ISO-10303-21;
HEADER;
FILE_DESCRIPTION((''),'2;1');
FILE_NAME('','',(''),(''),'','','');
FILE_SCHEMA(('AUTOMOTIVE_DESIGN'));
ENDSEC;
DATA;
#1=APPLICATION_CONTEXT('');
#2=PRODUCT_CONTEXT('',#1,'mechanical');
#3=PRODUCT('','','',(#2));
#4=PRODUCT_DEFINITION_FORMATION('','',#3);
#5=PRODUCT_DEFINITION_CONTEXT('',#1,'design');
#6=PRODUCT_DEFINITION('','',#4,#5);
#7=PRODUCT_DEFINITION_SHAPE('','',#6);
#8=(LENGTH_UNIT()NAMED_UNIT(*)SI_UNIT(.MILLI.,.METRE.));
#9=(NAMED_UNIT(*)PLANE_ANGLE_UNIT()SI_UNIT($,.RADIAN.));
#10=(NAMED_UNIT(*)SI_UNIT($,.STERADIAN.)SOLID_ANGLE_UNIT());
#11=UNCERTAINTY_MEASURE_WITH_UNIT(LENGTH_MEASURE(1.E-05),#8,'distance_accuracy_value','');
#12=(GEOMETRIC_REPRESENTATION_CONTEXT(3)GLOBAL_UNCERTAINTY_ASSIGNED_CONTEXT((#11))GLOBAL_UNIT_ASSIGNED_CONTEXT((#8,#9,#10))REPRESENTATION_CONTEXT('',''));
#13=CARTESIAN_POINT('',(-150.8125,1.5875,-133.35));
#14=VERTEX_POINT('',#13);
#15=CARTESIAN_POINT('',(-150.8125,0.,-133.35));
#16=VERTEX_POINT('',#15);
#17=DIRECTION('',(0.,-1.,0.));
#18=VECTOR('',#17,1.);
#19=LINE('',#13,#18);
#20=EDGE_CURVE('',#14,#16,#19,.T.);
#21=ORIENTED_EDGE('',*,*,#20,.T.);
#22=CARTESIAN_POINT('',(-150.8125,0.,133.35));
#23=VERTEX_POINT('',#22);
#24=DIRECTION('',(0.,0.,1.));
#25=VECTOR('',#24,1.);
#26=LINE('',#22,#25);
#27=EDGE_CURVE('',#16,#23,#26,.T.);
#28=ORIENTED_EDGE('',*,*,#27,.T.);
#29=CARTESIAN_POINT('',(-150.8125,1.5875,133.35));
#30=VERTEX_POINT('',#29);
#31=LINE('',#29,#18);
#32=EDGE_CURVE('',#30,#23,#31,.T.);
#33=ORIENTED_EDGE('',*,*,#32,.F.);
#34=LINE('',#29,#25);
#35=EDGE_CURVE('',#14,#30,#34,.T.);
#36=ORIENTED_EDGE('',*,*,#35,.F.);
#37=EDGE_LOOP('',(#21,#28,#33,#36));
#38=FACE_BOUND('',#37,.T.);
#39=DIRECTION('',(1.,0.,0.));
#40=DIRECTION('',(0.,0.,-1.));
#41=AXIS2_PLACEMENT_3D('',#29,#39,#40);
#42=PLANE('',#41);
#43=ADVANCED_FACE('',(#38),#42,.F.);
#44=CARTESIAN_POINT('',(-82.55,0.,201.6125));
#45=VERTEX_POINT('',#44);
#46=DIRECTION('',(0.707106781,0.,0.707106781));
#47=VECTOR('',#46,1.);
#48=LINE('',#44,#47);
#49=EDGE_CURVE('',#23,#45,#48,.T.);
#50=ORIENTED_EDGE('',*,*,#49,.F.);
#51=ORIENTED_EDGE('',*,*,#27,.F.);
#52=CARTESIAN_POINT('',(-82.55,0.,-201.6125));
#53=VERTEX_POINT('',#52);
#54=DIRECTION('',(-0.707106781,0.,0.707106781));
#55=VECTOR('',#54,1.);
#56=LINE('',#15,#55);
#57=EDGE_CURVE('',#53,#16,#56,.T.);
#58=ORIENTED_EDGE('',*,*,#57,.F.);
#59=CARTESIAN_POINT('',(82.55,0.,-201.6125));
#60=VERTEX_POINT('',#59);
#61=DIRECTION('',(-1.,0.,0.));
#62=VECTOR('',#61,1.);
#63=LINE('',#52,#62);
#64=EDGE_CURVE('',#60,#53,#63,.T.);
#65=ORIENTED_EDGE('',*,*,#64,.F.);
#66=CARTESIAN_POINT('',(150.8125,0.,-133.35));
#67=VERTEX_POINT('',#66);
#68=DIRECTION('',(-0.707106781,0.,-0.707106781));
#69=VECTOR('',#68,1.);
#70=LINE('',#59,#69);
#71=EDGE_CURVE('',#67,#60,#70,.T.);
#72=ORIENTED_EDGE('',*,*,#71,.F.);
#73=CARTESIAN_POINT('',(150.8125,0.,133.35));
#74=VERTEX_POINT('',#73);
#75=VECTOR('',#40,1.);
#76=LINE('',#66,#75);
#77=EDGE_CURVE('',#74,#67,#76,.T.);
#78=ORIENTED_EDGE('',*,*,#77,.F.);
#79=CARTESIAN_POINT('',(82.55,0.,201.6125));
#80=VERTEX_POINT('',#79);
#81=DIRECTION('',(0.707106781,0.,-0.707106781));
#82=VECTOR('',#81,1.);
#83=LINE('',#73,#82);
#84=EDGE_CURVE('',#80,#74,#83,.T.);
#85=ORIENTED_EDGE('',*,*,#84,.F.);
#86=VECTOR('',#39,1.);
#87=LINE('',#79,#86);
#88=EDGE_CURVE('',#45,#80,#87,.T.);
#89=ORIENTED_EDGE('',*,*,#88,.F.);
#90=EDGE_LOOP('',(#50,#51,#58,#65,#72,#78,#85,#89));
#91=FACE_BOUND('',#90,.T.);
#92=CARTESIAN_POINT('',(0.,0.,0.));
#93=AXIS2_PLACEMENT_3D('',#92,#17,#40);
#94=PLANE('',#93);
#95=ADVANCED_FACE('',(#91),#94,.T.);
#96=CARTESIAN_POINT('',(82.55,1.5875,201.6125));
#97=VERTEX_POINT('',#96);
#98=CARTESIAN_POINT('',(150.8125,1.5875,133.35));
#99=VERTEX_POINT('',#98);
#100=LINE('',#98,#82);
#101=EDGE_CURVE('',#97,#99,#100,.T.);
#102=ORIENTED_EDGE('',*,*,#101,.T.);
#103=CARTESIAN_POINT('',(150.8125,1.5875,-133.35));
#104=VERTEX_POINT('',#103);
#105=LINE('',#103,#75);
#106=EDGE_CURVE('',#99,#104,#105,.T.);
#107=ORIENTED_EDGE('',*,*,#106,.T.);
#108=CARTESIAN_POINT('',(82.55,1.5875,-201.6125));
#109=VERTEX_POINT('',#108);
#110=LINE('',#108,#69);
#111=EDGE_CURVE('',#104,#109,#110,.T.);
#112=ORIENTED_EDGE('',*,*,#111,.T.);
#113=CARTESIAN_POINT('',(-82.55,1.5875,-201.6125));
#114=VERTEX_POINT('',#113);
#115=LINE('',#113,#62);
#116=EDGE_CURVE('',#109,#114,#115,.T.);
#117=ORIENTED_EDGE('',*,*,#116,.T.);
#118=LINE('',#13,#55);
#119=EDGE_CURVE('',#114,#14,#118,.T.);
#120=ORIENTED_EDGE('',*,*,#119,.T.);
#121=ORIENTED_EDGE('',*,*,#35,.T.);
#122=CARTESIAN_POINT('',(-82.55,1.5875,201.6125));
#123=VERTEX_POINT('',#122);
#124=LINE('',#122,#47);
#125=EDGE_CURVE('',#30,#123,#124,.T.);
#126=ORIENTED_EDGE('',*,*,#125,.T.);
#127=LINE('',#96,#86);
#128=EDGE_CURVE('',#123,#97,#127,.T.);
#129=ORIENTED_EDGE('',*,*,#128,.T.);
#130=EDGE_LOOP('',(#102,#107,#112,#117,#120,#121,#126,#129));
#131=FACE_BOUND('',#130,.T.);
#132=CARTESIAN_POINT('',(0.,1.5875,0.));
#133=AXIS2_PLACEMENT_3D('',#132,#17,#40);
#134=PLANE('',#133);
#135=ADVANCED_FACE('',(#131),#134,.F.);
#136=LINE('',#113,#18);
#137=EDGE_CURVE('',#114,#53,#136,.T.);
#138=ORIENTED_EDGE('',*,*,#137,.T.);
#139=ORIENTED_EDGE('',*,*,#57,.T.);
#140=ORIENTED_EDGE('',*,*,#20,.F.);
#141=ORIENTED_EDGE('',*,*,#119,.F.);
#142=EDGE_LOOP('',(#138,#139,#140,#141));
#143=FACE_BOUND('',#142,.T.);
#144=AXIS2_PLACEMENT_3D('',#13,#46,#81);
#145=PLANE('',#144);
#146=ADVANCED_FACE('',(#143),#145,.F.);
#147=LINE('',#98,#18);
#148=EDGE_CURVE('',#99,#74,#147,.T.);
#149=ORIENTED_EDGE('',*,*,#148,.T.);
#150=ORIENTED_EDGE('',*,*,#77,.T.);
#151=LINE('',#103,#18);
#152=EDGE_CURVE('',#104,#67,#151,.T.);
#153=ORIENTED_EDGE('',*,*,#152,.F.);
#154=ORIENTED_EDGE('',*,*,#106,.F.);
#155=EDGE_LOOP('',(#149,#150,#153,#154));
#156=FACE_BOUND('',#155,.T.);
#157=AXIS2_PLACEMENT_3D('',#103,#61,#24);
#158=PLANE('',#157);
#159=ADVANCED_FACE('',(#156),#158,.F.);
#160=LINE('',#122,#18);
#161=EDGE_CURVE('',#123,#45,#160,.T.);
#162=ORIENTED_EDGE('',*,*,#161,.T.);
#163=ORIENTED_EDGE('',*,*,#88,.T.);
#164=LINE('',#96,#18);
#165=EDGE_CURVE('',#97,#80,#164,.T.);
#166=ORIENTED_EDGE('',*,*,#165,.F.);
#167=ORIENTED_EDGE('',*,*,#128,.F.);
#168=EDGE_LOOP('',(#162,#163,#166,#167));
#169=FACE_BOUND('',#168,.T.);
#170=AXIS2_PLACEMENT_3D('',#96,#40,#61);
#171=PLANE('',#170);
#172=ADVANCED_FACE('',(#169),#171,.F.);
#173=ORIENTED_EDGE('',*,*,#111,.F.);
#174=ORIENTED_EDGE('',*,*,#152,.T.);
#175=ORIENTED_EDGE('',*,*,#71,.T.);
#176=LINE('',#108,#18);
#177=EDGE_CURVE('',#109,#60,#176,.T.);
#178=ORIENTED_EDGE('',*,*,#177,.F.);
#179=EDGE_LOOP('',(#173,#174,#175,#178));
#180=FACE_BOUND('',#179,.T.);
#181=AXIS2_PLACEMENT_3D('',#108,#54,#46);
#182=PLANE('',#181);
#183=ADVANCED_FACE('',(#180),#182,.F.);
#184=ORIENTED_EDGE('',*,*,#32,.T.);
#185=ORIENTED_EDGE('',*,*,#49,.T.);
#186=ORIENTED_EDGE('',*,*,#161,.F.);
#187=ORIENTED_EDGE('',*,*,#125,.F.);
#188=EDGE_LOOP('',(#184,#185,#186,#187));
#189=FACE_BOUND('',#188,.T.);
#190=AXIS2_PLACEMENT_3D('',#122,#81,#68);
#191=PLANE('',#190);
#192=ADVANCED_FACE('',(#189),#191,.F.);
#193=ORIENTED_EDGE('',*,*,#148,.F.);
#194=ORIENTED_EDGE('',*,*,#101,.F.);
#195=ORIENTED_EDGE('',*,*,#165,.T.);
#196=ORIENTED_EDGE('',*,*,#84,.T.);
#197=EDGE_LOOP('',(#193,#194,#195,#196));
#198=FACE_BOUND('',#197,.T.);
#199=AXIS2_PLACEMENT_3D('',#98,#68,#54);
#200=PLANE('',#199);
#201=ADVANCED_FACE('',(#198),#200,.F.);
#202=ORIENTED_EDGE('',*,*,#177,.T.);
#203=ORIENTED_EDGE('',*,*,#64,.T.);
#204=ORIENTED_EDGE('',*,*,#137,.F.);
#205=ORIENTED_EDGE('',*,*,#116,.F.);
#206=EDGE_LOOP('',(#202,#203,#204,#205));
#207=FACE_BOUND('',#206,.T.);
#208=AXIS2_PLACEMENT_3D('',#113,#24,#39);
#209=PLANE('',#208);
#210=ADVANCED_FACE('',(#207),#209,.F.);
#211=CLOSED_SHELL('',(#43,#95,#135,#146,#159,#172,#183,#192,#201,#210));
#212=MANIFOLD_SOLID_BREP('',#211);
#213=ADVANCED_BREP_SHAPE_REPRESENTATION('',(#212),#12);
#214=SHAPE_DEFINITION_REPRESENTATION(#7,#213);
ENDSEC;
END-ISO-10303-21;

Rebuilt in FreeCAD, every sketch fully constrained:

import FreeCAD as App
import Part
import Sketcher
Q = App.Units.Quantity


def add_polygon(sketch, points):
    """Adds a closed chain of lines whose ends are joined by coincident constraints."""
    first, n = sketch.GeometryCount, len(points)
    for a, b in zip(points, points[1:] + points[:1]):
        sketch.addGeometry(Part.LineSegment(App.Vector(*a, 0), App.Vector(*b, 0)), False)
    for i in range(n):
        sketch.addConstraint(Sketcher.Constraint("Coincident", first + i, 2, first + (i + 1) % n, 1))

doc = App.newDocument("Part")
params = doc.addObject("Spreadsheet::Sheet", "Params")
for row, (alias, value) in enumerate([
    ("sketch1_width", "6.5 in"),
    ("sketch1_height", "10.5 in"),
    ("pad1_length", "0.0625 in"),
], start=1):
    params.set(f"A{row}", alias)
    params.set(f"B{row}", "=" + value)
    params.setAlias(f"B{row}", alias)

body = doc.addObject("PartDesign::Body", "Body")

# Sketch on XZ plane
sketch1 = doc.addObject("Sketcher::SketchObject", "Sketch")
body.addObject(sketch1)
sketch1.AttachmentSupport = (doc.XZ_Plane, [""])
sketch1.MapMode = "FlatFace"
add_polygon(sketch1, [(83, -202), (-83, -202), (-151, -133), (-151, 133), (-83, 202), (83, 202), (151, 133), (151, -133)])  # lines 0-7
sketch1.addConstraint(Sketcher.Constraint("Horizontal", 0))
sketch1.addConstraint(Sketcher.Constraint("Vertical", 2))
sketch1.addConstraint(Sketcher.Constraint("Horizontal", 4))
sketch1.addConstraint(Sketcher.Constraint("Vertical", 6))
sketch1.addConstraint(Sketcher.Constraint("Symmetric", 0, 2, 4, 2, -1, 1))
sketch1.addConstraint(Sketcher.Constraint("Symmetric", 1, 2, 5, 2, -1, 1))
sketch1.addConstraint(Sketcher.Constraint("Perpendicular", 1, 3))
sketch1.addConstraint(Sketcher.Constraint("Perpendicular", 5, 7))
sketch1.addConstraint(Sketcher.Constraint("Horizontal", 2, 2, 5, 2))
sketch1.addConstraint(Sketcher.Constraint("Horizontal", 1, 2, 6, 2))
sketch1.addConstraint(Sketcher.Constraint("Vertical", 0, 2, 3, 2))
sketch1.addConstraint(Sketcher.Constraint("DistanceX", 0, 2, 0, 1, Q("6.5 in")))
sketch1.addConstraint(Sketcher.Constraint("DistanceY", 2, 1, 2, 2, Q("10.5 in")))
sketch1.addConstraint(Sketcher.Constraint("DistanceY", 0, 2, -1, 1, Q("7.9375 in")))
sketch1.setExpression("Constraints[19]", "Params.sketch1_width")
sketch1.setExpression("Constraints[20]", "Params.sketch1_height")
pad1 = doc.addObject("PartDesign::Pad", "Pad")
body.addObject(pad1)
pad1.Profile = sketch1
pad1.setExpression("Length", "Params.pad1_length")
pad1.Reversed = True

doc.recompute()
